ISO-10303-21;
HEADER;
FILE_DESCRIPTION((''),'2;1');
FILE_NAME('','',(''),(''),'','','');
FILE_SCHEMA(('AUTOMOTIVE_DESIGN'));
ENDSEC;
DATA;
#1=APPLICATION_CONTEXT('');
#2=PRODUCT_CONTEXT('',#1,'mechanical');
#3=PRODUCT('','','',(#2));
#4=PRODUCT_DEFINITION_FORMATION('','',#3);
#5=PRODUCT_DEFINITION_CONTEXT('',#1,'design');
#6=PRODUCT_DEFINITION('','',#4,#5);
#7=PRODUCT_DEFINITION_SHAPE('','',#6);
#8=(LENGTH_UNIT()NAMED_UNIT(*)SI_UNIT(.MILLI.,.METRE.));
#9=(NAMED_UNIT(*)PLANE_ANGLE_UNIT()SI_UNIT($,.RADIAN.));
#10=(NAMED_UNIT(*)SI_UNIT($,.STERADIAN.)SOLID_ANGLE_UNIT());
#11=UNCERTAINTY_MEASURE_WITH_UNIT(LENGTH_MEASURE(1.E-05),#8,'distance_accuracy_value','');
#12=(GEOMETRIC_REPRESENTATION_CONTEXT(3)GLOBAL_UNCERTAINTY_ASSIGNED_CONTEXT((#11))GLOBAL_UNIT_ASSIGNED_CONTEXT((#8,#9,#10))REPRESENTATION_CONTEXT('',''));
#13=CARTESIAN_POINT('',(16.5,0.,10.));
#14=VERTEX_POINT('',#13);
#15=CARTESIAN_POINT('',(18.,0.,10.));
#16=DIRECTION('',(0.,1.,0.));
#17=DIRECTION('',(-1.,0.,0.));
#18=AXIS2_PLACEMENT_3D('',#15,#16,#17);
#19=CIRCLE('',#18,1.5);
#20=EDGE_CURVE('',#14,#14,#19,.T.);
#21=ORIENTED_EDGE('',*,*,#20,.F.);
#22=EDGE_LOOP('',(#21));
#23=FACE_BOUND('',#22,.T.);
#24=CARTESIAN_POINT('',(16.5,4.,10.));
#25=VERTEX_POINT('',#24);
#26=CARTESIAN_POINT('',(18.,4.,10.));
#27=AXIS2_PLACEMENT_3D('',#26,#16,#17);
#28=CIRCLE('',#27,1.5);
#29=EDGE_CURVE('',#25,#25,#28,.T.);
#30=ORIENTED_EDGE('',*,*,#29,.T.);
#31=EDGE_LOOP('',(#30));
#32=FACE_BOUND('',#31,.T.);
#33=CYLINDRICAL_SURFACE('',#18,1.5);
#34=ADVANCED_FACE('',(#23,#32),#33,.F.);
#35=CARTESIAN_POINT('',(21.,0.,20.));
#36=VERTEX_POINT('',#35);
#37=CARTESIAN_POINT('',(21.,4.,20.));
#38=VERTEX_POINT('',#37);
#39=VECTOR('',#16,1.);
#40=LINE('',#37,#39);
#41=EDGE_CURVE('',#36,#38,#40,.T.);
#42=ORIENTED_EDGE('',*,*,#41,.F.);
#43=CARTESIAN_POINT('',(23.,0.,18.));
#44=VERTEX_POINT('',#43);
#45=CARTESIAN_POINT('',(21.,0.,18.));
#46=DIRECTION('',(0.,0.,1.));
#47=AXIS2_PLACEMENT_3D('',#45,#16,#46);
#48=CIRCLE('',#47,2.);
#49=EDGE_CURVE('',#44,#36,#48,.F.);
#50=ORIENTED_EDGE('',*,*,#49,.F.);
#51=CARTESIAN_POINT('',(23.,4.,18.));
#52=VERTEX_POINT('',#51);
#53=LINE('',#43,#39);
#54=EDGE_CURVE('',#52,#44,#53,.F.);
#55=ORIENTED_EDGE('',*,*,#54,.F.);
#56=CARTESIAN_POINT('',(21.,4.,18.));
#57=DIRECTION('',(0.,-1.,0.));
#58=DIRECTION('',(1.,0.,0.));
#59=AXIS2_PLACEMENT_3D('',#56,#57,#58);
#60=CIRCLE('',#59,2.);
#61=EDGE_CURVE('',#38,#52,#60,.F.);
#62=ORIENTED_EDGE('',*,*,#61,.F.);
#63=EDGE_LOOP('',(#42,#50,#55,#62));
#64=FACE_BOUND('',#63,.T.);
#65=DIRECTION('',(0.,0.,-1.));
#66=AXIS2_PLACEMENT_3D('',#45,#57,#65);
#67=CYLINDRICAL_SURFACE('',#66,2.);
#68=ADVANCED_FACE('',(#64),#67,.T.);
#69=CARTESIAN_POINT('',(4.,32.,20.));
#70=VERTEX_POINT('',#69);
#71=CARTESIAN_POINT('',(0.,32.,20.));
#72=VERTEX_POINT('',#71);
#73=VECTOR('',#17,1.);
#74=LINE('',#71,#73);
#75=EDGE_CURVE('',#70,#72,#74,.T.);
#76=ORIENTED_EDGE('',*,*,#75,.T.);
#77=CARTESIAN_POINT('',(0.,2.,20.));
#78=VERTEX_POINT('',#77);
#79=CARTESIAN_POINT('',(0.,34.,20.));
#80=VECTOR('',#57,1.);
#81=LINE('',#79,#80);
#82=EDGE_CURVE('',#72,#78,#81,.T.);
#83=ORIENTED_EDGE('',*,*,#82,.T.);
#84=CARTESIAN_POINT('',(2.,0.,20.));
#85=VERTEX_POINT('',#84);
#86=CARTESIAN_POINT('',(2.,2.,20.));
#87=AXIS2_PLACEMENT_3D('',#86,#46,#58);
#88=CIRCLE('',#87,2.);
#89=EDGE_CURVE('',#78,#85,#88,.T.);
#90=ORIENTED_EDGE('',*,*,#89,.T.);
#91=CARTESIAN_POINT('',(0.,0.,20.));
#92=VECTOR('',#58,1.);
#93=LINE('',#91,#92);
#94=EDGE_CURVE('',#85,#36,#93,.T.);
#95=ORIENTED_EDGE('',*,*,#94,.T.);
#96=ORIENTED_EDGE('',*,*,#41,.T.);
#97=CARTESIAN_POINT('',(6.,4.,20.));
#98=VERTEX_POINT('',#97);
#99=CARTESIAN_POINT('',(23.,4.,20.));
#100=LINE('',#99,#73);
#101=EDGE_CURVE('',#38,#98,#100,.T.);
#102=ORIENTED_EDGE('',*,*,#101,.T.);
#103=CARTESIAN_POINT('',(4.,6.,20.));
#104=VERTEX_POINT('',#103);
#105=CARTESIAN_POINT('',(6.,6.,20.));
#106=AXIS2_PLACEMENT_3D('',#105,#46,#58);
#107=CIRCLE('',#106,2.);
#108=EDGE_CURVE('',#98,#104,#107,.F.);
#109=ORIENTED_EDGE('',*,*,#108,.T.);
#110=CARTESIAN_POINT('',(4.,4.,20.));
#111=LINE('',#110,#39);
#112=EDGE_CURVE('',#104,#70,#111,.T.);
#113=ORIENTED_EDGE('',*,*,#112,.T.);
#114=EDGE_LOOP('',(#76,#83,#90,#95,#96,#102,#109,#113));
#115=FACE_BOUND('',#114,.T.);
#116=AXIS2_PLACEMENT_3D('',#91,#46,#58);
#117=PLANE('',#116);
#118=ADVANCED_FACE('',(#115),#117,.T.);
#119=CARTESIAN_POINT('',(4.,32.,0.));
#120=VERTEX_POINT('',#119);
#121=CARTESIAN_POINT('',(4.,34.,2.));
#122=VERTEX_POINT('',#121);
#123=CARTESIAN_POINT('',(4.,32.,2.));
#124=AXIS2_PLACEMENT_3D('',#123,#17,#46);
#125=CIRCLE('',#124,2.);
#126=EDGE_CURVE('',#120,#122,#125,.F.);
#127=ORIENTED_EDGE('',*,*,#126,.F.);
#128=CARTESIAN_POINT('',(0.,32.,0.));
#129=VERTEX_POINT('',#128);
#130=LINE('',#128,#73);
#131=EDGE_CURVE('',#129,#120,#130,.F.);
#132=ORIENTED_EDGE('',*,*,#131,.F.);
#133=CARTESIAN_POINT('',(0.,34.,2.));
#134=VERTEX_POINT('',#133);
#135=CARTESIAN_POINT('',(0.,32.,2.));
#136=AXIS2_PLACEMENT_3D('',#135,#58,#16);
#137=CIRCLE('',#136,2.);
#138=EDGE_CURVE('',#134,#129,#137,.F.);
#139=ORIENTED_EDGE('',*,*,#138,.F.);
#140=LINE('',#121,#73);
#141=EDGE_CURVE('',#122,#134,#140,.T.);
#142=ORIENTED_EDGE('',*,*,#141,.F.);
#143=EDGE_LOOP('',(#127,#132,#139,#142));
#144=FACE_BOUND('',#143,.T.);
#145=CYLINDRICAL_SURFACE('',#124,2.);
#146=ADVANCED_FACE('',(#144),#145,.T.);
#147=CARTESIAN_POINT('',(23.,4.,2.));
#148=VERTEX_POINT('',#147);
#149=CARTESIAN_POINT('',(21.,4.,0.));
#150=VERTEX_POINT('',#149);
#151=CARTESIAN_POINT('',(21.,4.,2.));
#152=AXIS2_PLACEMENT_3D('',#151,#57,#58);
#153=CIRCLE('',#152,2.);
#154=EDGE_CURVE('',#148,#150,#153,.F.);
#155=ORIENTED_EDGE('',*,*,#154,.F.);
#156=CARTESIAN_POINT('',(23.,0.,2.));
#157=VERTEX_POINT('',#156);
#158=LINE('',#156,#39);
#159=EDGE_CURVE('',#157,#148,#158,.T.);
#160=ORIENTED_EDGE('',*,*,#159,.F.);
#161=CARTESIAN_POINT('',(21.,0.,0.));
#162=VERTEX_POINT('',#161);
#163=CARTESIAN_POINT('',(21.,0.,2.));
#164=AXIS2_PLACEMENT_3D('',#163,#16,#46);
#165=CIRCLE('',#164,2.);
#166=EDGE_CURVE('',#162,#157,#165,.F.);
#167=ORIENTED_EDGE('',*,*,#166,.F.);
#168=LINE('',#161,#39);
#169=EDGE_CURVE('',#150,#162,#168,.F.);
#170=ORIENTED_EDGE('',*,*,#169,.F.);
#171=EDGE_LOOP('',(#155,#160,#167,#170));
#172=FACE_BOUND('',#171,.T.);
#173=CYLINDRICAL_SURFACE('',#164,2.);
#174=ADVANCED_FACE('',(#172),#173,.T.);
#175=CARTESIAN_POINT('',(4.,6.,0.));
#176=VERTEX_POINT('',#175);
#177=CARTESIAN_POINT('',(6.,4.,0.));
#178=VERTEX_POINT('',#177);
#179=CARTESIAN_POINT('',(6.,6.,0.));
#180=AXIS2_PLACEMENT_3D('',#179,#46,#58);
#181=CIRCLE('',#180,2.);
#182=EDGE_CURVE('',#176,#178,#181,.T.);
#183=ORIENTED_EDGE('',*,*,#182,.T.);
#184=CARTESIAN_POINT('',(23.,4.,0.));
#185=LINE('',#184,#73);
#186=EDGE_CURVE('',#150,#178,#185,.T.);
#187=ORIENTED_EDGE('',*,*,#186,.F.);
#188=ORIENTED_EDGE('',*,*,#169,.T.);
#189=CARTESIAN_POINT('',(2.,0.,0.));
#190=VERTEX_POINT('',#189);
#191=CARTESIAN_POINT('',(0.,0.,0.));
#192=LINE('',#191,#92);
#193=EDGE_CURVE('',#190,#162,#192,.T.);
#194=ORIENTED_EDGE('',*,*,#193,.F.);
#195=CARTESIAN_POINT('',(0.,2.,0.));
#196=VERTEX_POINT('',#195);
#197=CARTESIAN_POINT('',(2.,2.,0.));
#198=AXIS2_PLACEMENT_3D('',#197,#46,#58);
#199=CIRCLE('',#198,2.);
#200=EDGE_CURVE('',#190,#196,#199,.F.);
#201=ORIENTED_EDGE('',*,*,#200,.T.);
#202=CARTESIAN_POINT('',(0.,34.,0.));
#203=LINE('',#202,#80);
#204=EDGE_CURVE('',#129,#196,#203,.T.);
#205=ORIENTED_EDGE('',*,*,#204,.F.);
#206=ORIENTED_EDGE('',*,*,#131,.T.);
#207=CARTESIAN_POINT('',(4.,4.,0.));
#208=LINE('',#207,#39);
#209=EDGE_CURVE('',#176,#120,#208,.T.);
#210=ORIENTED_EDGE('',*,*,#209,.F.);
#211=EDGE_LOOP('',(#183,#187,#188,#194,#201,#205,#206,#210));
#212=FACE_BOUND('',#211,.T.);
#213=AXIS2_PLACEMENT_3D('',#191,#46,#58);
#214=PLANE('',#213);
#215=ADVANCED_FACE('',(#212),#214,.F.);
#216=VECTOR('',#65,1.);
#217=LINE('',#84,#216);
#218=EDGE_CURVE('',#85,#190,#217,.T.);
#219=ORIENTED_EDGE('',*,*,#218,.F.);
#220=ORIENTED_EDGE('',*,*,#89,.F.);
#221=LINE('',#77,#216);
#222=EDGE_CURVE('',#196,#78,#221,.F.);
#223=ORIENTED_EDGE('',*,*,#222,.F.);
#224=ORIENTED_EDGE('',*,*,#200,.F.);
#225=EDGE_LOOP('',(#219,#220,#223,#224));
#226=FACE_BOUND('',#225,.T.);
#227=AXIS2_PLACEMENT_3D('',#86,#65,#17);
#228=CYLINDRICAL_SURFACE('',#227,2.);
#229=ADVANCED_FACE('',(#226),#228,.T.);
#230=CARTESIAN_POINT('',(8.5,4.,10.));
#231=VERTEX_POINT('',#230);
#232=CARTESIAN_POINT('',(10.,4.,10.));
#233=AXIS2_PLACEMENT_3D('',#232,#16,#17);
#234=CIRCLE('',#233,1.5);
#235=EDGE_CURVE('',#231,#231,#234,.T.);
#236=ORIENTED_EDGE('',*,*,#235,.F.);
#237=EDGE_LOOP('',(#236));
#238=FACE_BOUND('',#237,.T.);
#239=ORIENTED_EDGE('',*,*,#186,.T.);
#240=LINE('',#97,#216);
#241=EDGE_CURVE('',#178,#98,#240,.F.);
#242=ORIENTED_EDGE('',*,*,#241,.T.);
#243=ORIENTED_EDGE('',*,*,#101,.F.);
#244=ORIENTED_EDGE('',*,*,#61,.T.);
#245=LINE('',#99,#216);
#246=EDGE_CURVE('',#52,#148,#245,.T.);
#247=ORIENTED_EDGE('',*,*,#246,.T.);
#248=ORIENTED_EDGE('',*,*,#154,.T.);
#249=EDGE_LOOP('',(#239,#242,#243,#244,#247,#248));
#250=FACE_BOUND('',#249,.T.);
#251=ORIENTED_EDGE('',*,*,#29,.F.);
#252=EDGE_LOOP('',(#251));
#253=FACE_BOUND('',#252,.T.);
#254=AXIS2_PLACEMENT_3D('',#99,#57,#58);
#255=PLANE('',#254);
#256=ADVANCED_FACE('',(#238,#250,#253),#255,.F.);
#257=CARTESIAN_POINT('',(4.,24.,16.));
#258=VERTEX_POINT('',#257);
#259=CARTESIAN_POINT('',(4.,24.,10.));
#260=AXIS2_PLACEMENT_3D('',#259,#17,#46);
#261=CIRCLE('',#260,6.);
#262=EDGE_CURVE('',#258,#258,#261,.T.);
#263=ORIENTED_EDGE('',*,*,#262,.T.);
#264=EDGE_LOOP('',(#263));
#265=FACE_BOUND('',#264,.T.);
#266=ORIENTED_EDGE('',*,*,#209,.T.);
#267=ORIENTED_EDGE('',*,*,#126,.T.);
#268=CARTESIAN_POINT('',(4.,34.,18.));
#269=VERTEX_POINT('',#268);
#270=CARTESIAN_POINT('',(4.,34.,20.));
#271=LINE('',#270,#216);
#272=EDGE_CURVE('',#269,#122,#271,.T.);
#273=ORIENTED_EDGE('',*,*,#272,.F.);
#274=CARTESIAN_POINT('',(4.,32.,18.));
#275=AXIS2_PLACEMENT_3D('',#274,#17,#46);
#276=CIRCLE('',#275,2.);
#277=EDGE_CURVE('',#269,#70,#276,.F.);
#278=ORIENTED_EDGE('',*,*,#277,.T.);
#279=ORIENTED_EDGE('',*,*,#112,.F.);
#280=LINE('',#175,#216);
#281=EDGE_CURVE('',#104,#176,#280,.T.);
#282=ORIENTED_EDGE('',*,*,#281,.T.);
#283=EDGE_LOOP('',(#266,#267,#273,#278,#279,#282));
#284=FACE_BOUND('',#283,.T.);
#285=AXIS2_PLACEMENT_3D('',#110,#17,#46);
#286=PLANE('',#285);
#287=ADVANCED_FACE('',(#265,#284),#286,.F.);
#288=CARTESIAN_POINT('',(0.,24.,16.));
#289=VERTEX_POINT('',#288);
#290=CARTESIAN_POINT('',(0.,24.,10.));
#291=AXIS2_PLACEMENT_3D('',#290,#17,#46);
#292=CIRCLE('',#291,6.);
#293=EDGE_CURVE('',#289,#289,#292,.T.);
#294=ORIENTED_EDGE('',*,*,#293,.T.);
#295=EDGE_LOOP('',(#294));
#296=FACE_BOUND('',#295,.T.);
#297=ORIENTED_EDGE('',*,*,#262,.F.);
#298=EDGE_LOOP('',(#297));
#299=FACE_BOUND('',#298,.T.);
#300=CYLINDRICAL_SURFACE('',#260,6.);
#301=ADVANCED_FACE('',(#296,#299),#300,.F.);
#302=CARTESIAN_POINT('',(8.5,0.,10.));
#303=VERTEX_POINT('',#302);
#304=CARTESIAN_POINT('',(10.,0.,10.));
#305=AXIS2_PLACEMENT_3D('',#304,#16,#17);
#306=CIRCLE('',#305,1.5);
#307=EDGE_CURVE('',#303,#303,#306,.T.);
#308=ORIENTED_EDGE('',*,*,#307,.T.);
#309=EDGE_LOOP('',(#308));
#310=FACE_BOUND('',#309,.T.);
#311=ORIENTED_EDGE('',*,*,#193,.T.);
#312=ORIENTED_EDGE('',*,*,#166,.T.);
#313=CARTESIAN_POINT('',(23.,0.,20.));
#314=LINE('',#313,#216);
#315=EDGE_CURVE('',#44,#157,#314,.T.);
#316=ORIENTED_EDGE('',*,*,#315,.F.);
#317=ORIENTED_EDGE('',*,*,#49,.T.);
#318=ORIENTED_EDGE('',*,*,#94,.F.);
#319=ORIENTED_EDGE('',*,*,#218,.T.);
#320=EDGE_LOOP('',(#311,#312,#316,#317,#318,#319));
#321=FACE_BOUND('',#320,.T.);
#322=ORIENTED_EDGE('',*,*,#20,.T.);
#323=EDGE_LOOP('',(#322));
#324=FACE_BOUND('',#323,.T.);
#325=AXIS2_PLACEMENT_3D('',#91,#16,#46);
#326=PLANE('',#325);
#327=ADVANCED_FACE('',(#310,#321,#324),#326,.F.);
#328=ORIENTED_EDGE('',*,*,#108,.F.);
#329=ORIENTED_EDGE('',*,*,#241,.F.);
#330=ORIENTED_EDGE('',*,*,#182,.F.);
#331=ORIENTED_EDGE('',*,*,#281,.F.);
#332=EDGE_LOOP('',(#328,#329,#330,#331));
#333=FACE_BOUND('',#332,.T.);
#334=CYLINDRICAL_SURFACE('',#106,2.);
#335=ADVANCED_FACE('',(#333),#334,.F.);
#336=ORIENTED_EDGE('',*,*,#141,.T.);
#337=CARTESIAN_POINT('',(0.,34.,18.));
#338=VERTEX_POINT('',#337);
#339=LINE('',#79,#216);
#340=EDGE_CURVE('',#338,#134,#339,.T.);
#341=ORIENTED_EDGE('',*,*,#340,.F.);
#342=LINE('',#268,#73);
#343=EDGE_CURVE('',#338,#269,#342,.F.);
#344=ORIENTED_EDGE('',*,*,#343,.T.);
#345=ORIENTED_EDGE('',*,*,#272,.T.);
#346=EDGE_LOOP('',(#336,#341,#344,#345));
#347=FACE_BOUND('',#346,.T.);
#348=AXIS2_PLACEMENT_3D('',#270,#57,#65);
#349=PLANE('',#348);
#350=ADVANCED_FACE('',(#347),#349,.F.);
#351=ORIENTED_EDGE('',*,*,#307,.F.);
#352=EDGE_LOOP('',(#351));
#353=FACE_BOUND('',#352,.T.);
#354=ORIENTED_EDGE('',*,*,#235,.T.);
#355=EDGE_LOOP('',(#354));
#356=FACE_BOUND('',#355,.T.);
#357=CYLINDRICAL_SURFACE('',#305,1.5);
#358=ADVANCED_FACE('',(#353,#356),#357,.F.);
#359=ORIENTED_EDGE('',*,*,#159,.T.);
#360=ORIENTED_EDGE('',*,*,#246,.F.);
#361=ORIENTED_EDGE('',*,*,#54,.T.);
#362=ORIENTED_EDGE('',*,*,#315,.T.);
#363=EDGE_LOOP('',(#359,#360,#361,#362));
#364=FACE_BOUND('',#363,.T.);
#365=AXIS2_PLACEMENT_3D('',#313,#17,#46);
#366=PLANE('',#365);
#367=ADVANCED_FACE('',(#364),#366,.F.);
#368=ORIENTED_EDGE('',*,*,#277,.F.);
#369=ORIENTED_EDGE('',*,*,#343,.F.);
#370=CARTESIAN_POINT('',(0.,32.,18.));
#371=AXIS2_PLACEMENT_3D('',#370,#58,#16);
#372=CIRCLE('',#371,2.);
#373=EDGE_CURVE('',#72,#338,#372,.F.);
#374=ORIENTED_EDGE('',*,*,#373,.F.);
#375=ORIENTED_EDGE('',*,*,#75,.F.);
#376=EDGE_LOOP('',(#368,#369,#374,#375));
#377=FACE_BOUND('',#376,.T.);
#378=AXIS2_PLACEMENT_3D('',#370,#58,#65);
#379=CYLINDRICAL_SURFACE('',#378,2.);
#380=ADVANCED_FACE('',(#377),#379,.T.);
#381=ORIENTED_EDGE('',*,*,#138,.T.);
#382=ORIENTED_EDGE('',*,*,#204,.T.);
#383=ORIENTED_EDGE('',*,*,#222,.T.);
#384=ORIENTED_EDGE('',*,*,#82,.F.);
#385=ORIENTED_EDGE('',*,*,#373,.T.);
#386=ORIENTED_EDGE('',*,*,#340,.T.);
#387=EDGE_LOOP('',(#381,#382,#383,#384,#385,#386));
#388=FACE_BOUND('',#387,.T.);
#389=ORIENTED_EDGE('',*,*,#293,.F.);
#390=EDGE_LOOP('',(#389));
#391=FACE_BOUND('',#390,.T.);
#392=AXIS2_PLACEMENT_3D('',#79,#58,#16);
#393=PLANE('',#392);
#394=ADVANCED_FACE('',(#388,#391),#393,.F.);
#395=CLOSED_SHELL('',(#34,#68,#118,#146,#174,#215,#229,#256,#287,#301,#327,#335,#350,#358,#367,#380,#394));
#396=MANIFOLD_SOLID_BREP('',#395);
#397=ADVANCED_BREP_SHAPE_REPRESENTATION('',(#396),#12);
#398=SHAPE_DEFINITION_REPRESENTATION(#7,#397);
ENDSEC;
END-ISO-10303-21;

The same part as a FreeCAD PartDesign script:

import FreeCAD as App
import Part
import Sketcher

V = App.Vector
Q = App.Units.Quantity


def edges_at(feature, points):
    """Names of the edges that pass closest to the given points."""
    edges = feature.Shape.Edges
    near = lambda p: min(range(len(edges)), key=lambda i: edges[i].distToShape(Part.Vertex(*p))[0])
    return sorted({f"Edge{near(p) + 1}" for p in points})


def add_polygon(sketch, points):
    """Adds a closed chain of lines whose ends are joined by coincident constraints."""
    first, n = sketch.GeometryCount, len(points)
    for a, b in zip(points, points[1:] + points[:1]):
        sketch.addGeometry(Part.LineSegment(App.Vector(*a, 0), App.Vector(*b, 0)), False)
    for i in range(n):
        sketch.addConstraint(Sketcher.Constraint("Coincident", first + i, 2, first + (i + 1) % n, 1))

doc = App.newDocument("Part")
params = doc.addObject("Spreadsheet::Sheet", "Params")
for row, (alias, value) in enumerate([
    ("sketch1_width", "23 mm"),
    ("sketch1_width2", "19 mm"),
    ("sketch1_height", "30 mm"),
    ("pad1_length", "20 mm"),
    ("sketch2_diameter", "12 mm"),
    ("pocket1_length", "4 mm"),
    ("sketch3_diameter", "3 mm"),
    ("pocket2_length", "4 mm"),
    ("fillet_radius", "2 mm"),
], start=1):
    params.set(f"A{row}", alias)
    params.set(f"B{row}", "=" + value)
    params.setAlias(f"B{row}", alias)

body = doc.addObject("PartDesign::Body", "Body")

# Sketch on XY plane
sketch1 = body.newObject("Sketcher::SketchObject", "Sketch")
sketch1.AttachmentSupport = (doc.getObject("XY_Plane"), [""])
sketch1.MapMode = "FlatFace"
add_polygon(sketch1, [(0, 0), (23, 0), (23, 4), (4, 4), (4, 34), (0, 34)])  # lines 0-5
sketch1.addConstraint(Sketcher.Constraint("Horizontal", 0))
sketch1.addConstraint(Sketcher.Constraint("Vertical", 1))
sketch1.addConstraint(Sketcher.Constraint("Horizontal", 2))
sketch1.addConstraint(Sketcher.Constraint("Vertical", 3))
sketch1.addConstraint(Sketcher.Constraint("Horizontal", 4))
sketch1.addConstraint(Sketcher.Constraint("Vertical", 5))
sketch1.addConstraint(Sketcher.Constraint("Coincident", 5, 2, -1, 1))
sketch1.addConstraint(Sketcher.Constraint("Equal", 4, 1))
sketch1.addConstraint(Sketcher.Constraint("DistanceX", 0, 1, 0, 2, Q("23 mm")))
sketch1.addConstraint(Sketcher.Constraint("DistanceX", 2, 2, 2, 1, Q("19 mm")))
sketch1.addConstraint(Sketcher.Constraint("DistanceY", 3, 1, 3, 2, Q("30 mm")))
sketch1.setExpression("Constraints[14]", "Params.sketch1_width")
sketch1.setExpression("Constraints[15]", "Params.sketch1_width2")
sketch1.setExpression("Constraints[16]", "Params.sketch1_height")
pad1 = body.newObject("PartDesign::Pad", "Pad")
pad1.Profile = sketch1
pad1.setExpression("Length", "Params.pad1_length")

# Sketch on YZ plane
sketch2 = body.newObject("Sketcher::SketchObject", "Sketch001")
sketch2.AttachmentSupport = (doc.getObject("YZ_Plane"), [""])
sketch2.MapMode = "FlatFace"
sketch2.addGeometry(Part.Circle(V(24, 10, 0), V(0, 0, 1), 6), False)
sketch2.addConstraint(Sketcher.Constraint("Diameter", 0, Q("12 mm")))
sketch2.addConstraint(Sketcher.Constraint("DistanceX", -1, 1, 0, 3, Q("24 mm")))
sketch2.addConstraint(Sketcher.Constraint("DistanceY", -1, 1, 0, 3, Q("10 mm")))
sketch2.setExpression("Constraints[0]", "Params.sketch2_diameter")
pocket1 = body.newObject("PartDesign::Pocket", "Pocket")
pocket1.Profile = sketch2
pocket1.setExpression("Length", "Params.pocket1_length")
pocket1.Reversed = True

# Sketch on XZ plane
sketch3 = body.newObject("Sketcher::SketchObject", "Sketch002")
sketch3.AttachmentSupport = (doc.getObject("XZ_Plane"), [""])
sketch3.MapMode = "FlatFace"
sketch3.AttachmentOffset = App.Placement(V(0, 0, -4), App.Rotation())
sketch3.addGeometry(Part.Circle(V(18, 10, 0), V(0, 0, 1), 1.5), False)
sketch3.addGeometry(Part.Circle(V(10, 10, 0), V(0, 0, 1), 1.5), False)
sketch3.addConstraint(Sketcher.Constraint("Equal", 0, 1))
sketch3.addConstraint(Sketcher.Constraint("Horizontal", 0, 3, 1, 3))
sketch3.addConstraint(Sketcher.Constraint("Diameter", 0, Q("3 mm")))
sketch3.addConstraint(Sketcher.Constraint("DistanceX", -1, 1, 0, 3, Q("18 mm")))
sketch3.addConstraint(Sketcher.Constraint("DistanceY", -1, 1, 0, 3, Q("10 mm")))
sketch3.addConstraint(Sketcher.Constraint("DistanceX", -1, 1, 1, 3, Q("10 mm")))
sketch3.setExpression("Constraints[2]", "Params.sketch3_diameter")
pocket2 = body.newObject("PartDesign::Pocket", "Pocket001")
pocket2.Profile = sketch3
pocket2.setExpression("Length", "Params.pocket2_length")
pocket2.Reversed = True
doc.recompute()

fillet = body.newObject("PartDesign::Fillet", "Fillet")
fillet.Base = (pocket2, edges_at(pocket2, [
    (23, 2, 20),
    (4, 4, 10),
    (0, 0, 10),
    (2, 34, 20),
    (2, 34, 0),
    (23, 2, 0),
]))
fillet.setExpression("Radius", "Params.fillet_radius")

doc.recompute()
